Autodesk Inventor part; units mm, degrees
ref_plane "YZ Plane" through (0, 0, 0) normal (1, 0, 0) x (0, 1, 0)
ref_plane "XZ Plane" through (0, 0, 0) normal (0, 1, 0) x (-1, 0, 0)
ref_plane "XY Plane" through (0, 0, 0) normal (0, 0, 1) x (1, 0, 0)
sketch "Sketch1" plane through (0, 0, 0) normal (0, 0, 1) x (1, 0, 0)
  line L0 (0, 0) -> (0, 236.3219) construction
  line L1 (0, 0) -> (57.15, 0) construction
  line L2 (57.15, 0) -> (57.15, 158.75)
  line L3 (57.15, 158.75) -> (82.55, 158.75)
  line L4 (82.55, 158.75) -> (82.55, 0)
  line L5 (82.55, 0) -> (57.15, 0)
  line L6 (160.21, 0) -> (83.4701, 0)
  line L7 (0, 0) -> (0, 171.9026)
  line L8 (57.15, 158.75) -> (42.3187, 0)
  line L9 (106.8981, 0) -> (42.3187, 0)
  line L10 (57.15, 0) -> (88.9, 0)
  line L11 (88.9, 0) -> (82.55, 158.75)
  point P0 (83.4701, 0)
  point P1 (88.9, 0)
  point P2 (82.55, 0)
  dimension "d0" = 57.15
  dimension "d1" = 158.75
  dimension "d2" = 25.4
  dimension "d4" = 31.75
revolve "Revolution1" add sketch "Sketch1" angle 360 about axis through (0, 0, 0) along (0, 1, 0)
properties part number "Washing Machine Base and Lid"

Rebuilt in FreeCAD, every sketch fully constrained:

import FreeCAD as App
import Part
import Sketcher

V = App.Vector
Q = App.Units.Quantity

doc = App.newDocument("Part")
body = doc.addObject("PartDesign::Body", "Body")

# Sketch on XY plane
sketch1 = body.newObject("Sketcher::SketchObject", "Sketch")
sketch1.AttachmentSupport = (doc.getObject("XY_Plane"), [""])
sketch1.MapMode = "FlatFace"
sketch1.addGeometry(Part.LineSegment(V(42, 0, 0), V(89, 0, 0)), False)
sketch1.addGeometry(Part.LineSegment(V(89, 0, 0), V(83, 159, 0)), False)
sketch1.addGeometry(Part.LineSegment(V(83, 159, 0), V(57, 159, 0)), False)
sketch1.addGeometry(Part.LineSegment(V(57, 159, 0), V(42, 0, 0)), False)
sketch1.addConstraint(Sketcher.Constraint("Coincident", 0, 2, 1, 1))
sketch1.addConstraint(Sketcher.Constraint("Coincident", 1, 2, 2, 1))
sketch1.addConstraint(Sketcher.Constraint("Coincident", 2, 2, 3, 1))
sketch1.addConstraint(Sketcher.Constraint("Coincident", 3, 2, 0, 1))
sketch1.addConstraint(Sketcher.Constraint("Horizontal", 0))
sketch1.addConstraint(Sketcher.Constraint("Horizontal", 2))
sketch1.addConstraint(Sketcher.Constraint("PointOnObject", 0, 2, -1))
sketch1.addConstraint(Sketcher.Constraint("DistanceX", 2, 2, 2, 1, Q("1 in")))
sketch1.addConstraint(Sketcher.Constraint("DistanceY", -1, 1, 1, 2, Q("6.25 in")))
sketch1.addConstraint(Sketcher.Constraint("DistanceX", -1, 1, 2, 2, Q("2.25 in")))
sketch1.addConstraint(Sketcher.Constraint("DistanceX", 2, 2, 0, 2, Q("1.25 in")))
sketch1.addConstraint(Sketcher.Constraint("DistanceX", 0, 1, 0, 2, Q("1.8339 in")))
revolution = body.newObject("PartDesign::Revolution", "Revolution")
revolution.Profile = sketch1
revolution.ReferenceAxis = (sketch1, ["V_Axis"])
revolution.Angle = 360

doc.recompute()
